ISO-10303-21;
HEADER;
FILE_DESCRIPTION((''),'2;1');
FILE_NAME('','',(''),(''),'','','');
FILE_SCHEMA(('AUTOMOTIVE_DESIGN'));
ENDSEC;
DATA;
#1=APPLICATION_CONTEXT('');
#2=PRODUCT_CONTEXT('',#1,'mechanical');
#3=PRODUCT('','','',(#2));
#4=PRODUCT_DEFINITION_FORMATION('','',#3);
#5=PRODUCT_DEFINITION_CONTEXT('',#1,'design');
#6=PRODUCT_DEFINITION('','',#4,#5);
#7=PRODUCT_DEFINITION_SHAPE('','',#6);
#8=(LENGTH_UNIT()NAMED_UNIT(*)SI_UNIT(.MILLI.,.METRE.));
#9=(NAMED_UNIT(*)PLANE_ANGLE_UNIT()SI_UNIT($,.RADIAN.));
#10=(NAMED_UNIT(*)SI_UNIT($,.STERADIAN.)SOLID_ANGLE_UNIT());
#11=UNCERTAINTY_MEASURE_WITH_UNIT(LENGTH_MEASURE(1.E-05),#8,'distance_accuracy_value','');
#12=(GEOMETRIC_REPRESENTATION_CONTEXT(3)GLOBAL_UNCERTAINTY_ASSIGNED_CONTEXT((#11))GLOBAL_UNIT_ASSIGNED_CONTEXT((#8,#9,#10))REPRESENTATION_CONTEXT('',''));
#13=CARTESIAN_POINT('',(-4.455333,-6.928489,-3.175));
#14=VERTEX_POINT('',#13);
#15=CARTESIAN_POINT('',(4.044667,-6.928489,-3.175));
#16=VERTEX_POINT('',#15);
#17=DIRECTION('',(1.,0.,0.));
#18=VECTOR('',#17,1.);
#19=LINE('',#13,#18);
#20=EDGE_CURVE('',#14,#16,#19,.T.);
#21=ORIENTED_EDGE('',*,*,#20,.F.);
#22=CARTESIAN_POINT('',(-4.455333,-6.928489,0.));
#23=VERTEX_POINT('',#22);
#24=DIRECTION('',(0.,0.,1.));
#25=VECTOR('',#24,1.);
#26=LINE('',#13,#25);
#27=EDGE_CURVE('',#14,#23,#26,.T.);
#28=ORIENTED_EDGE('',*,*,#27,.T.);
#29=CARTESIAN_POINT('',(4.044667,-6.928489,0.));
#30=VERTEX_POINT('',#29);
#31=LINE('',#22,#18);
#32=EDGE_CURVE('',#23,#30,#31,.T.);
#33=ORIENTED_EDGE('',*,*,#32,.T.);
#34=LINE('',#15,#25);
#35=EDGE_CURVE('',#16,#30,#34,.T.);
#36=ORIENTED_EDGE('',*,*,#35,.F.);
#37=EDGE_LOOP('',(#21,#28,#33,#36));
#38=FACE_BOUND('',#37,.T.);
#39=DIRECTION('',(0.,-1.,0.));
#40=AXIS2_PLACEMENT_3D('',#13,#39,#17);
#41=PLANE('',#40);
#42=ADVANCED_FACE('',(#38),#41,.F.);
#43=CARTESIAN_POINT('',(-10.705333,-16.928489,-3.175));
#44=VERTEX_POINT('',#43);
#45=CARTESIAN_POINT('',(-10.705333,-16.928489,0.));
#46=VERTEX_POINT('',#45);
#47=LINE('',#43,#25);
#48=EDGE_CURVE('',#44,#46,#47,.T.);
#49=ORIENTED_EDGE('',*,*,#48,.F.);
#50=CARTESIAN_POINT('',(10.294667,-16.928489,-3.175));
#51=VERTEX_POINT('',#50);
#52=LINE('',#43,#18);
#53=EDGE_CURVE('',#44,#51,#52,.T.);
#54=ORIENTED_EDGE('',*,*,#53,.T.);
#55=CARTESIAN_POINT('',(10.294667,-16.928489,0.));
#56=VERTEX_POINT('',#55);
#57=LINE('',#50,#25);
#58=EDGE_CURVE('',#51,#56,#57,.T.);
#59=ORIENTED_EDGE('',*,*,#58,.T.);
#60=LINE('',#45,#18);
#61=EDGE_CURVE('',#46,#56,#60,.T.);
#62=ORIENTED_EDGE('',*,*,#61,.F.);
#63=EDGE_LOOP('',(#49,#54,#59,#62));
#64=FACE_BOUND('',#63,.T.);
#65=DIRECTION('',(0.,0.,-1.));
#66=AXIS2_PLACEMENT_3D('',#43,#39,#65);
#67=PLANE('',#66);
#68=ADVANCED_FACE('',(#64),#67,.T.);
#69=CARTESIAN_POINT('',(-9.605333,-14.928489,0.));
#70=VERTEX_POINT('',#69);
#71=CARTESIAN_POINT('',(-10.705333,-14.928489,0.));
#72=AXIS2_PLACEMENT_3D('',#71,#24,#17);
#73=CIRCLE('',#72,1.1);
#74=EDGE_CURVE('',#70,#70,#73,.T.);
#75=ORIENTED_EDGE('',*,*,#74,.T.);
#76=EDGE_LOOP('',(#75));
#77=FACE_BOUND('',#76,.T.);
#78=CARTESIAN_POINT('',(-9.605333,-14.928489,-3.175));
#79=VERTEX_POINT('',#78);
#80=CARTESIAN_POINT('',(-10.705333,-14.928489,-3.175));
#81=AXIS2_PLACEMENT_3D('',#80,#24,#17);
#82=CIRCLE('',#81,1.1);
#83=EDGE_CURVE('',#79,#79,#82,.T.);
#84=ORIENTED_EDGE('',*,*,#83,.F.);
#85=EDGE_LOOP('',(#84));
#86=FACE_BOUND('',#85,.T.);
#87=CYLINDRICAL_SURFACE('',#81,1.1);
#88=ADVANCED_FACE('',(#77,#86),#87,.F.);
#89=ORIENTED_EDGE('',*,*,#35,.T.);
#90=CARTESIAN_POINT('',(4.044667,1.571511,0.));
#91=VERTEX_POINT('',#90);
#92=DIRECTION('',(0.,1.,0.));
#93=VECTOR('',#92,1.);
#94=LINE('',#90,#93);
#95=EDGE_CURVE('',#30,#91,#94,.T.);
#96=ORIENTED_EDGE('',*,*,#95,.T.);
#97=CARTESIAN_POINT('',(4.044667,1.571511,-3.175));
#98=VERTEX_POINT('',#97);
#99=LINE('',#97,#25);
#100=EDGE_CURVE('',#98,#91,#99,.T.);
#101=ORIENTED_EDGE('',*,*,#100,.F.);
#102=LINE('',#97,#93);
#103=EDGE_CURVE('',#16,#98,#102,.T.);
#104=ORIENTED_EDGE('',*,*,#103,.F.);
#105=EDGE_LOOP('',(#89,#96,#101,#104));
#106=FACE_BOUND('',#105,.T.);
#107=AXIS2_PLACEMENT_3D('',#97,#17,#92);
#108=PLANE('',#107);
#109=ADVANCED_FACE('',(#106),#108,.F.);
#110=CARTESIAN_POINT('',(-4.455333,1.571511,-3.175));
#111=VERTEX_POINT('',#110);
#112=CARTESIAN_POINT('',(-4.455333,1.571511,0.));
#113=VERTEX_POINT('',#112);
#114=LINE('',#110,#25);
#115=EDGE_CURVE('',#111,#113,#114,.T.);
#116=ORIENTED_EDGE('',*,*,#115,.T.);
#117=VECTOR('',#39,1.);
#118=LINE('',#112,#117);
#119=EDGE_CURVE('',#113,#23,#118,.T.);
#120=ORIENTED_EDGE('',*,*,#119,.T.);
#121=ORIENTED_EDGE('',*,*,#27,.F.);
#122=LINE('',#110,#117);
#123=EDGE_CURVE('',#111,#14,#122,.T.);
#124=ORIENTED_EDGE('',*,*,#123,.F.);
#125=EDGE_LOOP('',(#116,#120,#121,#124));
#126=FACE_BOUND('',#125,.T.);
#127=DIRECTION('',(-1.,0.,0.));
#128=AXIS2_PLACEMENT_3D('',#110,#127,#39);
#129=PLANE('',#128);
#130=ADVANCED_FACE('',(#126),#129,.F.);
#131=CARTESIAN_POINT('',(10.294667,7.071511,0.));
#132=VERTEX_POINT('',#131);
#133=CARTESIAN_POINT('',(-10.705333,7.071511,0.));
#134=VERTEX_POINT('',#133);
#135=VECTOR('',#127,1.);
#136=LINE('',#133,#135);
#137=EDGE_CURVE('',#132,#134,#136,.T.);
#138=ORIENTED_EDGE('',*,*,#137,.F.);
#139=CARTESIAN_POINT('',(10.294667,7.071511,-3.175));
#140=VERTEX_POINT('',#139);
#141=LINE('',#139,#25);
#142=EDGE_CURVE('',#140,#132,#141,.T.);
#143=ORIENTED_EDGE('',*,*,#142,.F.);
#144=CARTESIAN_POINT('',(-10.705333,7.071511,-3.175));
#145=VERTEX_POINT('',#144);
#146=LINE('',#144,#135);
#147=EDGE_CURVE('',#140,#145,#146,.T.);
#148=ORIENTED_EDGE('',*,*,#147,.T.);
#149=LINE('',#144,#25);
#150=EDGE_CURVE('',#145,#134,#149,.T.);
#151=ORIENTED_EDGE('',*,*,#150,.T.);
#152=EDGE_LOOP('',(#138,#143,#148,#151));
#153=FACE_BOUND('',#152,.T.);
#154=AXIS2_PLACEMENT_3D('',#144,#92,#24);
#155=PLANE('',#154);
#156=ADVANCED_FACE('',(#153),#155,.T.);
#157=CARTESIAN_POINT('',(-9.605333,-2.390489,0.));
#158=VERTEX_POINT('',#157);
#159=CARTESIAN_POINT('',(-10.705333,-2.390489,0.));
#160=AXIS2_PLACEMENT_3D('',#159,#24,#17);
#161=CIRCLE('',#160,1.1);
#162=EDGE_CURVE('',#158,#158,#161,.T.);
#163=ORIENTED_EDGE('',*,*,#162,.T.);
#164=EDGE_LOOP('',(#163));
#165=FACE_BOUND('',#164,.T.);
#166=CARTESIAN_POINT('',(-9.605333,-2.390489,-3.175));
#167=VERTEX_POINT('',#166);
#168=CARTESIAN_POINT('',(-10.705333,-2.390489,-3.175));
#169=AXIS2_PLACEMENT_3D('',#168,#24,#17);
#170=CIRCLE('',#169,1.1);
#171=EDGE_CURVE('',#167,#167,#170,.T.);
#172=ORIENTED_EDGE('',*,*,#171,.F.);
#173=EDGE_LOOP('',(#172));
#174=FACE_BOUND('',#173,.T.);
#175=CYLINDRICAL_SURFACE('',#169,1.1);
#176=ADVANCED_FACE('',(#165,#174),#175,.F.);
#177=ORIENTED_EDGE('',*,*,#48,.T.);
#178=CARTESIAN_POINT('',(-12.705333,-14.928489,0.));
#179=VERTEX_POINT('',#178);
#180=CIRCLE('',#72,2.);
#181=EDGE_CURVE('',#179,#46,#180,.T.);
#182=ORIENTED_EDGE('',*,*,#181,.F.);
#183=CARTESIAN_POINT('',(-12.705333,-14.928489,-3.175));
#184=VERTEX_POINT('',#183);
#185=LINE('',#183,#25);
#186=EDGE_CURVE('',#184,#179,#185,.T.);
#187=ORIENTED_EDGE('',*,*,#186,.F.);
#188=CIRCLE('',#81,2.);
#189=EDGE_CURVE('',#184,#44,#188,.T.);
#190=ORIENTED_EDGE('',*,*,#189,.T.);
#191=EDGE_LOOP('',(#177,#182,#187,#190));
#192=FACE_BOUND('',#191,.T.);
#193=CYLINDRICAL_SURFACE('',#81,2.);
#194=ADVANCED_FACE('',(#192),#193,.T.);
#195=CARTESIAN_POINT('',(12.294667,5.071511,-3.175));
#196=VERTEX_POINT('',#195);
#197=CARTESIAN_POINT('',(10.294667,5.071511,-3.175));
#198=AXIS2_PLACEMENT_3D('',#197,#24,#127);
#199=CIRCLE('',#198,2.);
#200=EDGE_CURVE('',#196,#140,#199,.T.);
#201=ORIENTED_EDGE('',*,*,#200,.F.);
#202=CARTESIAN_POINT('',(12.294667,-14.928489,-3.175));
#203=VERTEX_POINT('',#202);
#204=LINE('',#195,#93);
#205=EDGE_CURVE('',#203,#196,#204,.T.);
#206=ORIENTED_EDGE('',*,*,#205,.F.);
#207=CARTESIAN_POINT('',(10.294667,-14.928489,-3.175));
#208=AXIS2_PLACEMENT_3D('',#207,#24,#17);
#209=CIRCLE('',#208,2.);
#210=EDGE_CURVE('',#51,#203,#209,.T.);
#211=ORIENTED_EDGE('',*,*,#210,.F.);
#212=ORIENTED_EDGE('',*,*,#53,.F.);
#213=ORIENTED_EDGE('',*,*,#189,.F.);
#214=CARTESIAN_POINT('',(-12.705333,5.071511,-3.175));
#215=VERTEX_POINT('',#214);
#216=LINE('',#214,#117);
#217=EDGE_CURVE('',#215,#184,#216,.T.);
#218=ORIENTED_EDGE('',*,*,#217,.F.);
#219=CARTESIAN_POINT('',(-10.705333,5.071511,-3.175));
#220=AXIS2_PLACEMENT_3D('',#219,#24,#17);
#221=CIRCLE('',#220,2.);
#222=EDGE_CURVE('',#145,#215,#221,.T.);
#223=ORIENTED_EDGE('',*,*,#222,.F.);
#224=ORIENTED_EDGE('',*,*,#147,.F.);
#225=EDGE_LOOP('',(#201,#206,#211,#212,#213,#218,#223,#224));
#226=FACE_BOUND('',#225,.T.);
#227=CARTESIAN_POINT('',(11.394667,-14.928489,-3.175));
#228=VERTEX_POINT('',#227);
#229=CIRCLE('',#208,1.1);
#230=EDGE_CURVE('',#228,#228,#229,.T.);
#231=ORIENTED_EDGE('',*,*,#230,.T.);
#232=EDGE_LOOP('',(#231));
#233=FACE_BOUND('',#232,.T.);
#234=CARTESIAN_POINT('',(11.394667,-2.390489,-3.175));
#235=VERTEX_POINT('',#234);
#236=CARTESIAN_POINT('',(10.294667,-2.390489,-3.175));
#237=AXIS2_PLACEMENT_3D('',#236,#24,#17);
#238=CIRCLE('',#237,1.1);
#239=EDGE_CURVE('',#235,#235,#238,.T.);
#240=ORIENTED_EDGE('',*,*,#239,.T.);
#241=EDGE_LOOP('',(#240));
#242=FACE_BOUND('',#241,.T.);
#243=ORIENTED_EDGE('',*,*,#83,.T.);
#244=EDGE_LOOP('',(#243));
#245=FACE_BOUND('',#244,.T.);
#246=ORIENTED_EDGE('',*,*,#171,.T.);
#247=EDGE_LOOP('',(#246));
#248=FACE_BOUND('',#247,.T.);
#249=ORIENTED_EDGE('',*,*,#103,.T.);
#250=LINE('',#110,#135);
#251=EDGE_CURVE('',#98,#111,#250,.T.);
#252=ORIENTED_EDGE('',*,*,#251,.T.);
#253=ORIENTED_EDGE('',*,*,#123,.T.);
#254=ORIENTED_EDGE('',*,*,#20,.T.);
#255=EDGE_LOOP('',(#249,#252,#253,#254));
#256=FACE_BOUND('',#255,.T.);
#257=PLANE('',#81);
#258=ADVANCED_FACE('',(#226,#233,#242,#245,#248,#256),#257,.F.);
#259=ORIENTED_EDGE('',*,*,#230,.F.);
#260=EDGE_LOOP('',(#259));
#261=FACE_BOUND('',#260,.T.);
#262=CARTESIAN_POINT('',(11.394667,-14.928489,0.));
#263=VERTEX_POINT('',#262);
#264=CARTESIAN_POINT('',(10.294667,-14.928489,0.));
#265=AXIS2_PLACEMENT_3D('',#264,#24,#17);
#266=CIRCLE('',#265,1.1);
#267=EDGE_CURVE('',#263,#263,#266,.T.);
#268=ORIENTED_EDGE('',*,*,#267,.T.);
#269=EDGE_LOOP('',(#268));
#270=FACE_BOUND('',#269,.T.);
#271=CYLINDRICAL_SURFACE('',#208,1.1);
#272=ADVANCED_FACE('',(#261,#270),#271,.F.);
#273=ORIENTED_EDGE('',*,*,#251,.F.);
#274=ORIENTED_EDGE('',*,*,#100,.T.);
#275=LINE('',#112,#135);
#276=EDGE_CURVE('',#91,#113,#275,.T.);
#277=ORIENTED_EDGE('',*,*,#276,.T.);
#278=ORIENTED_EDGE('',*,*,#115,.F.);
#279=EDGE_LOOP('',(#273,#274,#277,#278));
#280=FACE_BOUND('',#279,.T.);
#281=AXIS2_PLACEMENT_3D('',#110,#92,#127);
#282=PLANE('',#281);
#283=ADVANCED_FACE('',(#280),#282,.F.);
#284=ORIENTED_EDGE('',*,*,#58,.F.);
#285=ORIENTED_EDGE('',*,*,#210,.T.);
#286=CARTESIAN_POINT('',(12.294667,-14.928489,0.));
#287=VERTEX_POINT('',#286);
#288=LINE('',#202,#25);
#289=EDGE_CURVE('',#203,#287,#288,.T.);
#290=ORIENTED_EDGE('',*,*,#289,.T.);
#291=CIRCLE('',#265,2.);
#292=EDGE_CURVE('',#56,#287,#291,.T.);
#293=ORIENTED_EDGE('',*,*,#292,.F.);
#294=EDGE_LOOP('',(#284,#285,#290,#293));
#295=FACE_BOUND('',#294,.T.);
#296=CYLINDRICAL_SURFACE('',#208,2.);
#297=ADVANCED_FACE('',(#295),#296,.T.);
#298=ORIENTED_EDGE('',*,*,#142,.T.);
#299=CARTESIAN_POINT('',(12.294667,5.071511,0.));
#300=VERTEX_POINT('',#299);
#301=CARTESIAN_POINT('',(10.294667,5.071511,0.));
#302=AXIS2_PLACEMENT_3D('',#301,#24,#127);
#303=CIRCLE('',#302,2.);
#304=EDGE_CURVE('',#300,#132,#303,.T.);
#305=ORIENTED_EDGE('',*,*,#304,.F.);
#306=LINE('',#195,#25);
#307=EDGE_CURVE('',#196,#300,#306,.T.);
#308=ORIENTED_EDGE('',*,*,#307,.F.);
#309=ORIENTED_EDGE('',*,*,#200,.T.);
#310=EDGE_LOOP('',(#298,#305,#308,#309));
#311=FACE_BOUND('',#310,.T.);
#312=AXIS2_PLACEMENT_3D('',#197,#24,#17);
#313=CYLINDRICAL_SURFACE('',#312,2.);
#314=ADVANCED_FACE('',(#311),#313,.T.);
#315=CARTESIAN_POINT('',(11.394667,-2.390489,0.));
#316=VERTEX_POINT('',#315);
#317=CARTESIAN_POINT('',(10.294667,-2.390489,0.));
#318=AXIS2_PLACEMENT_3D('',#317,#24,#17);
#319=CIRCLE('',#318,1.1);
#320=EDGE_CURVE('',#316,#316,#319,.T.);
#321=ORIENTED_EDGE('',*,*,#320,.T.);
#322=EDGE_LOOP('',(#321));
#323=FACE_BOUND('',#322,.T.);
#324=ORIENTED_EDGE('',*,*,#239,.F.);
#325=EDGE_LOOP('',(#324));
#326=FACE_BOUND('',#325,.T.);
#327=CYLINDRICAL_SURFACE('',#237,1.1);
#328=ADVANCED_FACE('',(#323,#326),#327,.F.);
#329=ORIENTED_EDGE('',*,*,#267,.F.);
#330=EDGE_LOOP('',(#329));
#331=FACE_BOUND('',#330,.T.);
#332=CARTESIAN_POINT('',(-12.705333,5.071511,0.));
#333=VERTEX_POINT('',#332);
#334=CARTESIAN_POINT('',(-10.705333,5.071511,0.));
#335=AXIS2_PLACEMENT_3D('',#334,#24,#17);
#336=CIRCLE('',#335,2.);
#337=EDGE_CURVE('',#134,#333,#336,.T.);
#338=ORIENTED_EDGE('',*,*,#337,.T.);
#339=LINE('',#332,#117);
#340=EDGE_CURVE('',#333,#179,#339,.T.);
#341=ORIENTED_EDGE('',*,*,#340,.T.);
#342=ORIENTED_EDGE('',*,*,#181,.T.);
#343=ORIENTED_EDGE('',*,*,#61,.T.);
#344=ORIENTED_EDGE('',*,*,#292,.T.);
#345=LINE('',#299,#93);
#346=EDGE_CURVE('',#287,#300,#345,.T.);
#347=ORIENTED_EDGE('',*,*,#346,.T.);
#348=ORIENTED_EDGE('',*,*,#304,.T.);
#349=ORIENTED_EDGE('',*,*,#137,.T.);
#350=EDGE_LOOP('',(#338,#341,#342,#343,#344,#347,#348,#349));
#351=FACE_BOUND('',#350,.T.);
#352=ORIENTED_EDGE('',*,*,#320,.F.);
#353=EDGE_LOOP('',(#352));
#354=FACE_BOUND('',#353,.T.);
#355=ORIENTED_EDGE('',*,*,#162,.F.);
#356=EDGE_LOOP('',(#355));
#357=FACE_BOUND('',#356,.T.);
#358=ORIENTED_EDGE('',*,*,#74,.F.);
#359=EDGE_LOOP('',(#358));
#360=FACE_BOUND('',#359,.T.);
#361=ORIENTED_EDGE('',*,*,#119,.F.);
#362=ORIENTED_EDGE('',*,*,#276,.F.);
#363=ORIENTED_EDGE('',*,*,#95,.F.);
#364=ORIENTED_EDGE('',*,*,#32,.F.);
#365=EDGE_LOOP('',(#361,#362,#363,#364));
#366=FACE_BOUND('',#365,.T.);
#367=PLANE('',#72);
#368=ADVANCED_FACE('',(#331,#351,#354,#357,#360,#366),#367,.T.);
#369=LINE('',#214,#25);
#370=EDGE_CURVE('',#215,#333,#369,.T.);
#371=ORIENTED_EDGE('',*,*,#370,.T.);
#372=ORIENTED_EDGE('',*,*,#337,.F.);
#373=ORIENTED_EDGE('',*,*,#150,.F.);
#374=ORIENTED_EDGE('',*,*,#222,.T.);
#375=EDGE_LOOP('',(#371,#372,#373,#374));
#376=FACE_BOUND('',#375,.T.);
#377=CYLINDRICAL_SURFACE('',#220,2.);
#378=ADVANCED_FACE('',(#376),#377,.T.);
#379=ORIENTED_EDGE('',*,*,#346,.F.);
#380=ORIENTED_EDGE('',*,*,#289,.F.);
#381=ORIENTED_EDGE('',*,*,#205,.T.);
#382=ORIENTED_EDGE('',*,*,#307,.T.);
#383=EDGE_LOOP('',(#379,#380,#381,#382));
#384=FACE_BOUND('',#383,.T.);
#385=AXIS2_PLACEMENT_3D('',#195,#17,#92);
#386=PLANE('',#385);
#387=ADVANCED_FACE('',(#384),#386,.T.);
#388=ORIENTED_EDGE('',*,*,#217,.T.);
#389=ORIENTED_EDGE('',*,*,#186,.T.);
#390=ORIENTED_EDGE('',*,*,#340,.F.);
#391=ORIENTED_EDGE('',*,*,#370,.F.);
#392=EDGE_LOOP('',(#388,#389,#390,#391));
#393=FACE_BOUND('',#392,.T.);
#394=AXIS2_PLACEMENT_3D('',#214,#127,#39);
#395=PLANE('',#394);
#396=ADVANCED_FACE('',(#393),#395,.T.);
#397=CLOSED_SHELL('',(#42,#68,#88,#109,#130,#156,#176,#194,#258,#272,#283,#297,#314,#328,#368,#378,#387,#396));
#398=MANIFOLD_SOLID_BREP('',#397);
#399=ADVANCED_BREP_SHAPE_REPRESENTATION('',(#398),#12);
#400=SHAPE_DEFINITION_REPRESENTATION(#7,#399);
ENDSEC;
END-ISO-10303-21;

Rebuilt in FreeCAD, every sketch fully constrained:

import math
import FreeCAD as App
import Part
import Sketcher

doc = App.newDocument("Part")
body = doc.addObject("PartDesign::Body", "Body")

sketch1 = body.newObject("Sketcher::SketchObject", "Sketch")
sketch1.AttachmentSupport = (doc.getObject("XY_Plane"), [""])
sketch1.MapMode = "FlatFace"
sketch1.addGeometry(Part.LineSegment(App.Vector(10.3, 7.1, 0), App.Vector(-10.7, 7.1, 0)), False)
sketch1.addGeometry(Part.ArcOfCircle(Part.Circle(App.Vector(-10.7, 5.1, 0), App.Vector(0, 0, 1), 2), math.radians(90), math.radians(180)), False)
sketch1.addGeometry(Part.LineSegment(App.Vector(-12.7, 5.1, 0), App.Vector(-12.7, -14.9, 0)), False)
sketch1.addGeometry(Part.ArcOfCircle(Part.Circle(App.Vector(-10.7, -14.9, 0), App.Vector(0, 0, 1), 2), math.radians(-180), math.radians(-90)), False)
sketch1.addGeometry(Part.LineSegment(App.Vector(-10.7, -16.9, 0), App.Vector(10.3, -16.9, 0)), False)
sketch1.addGeometry(Part.ArcOfCircle(Part.Circle(App.Vector(10.3, -14.9, 0), App.Vector(0, 0, 1), 2), math.radians(-90), math.radians(0)), False)
sketch1.addGeometry(Part.LineSegment(App.Vector(12.3, -14.9, 0), App.Vector(12.3, 5.1, 0)), False)
sketch1.addGeometry(Part.ArcOfCircle(Part.Circle(App.Vector(10.3, 5.1, 0), App.Vector(0, 0, 1), 2), math.radians(0), math.radians(90)), False)
sketch1.addGeometry(Part.Circle(App.Vector(10.3, -14.9, 0), App.Vector(0, 0, 1), 1.1), False)
sketch1.addGeometry(Part.Circle(App.Vector(-10.7, -14.9, 0), App.Vector(0, 0, 1), 1.1), False)
sketch1.addGeometry(Part.Circle(App.Vector(10.3, -2.4, 0), App.Vector(0, 0, 1), 1.1), False)
sketch1.addGeometry(Part.LineSegment(App.Vector(-4.5, -6.9, 0), App.Vector(-4.5, 1.6, 0)), False)
sketch1.addGeometry(Part.LineSegment(App.Vector(-4.5, 1.6, 0), App.Vector(4, 1.6, 0)), False)
sketch1.addGeometry(Part.LineSegment(App.Vector(4, 1.6, 0), App.Vector(4, -6.9, 0)), False)
sketch1.addGeometry(Part.LineSegment(App.Vector(4, -6.9, 0), App.Vector(-4.5, -6.9, 0)), False)
sketch1.addGeometry(Part.Circle(App.Vector(-10.7, -2.4, 0), App.Vector(0, 0, 1), 1.1), False)
sketch1.addConstraint(Sketcher.Constraint("Tangent", 0, 2, 1, 1))
sketch1.addConstraint(Sketcher.Constraint("Tangent", 1, 2, 2, 1))
sketch1.addConstraint(Sketcher.Constraint("Tangent", 2, 2, 3, 1))
sketch1.addConstraint(Sketcher.Constraint("Tangent", 3, 2, 4, 1))
sketch1.addConstraint(Sketcher.Constraint("Tangent", 4, 2, 5, 1))
sketch1.addConstraint(Sketcher.Constraint("Tangent", 5, 2, 6, 1))
sketch1.addConstraint(Sketcher.Constraint("Tangent", 6, 2, 7, 1))
sketch1.addConstraint(Sketcher.Constraint("Tangent", 7, 2, 0, 1))
sketch1.addConstraint(Sketcher.Constraint("Coincident", 11, 2, 12, 1))
sketch1.addConstraint(Sketcher.Constraint("Coincident", 12, 2, 13, 1))
sketch1.addConstraint(Sketcher.Constraint("Coincident", 13, 2, 14, 1))
sketch1.addConstraint(Sketcher.Constraint("Coincident", 14, 2, 11, 1))
sketch1.addConstraint(Sketcher.Constraint("Horizontal", 0))
sketch1.addConstraint(Sketcher.Constraint("Vertical", 2))
sketch1.addConstraint(Sketcher.Constraint("Horizontal", 4))
sketch1.addConstraint(Sketcher.Constraint("Vertical", 6))
sketch1.addConstraint(Sketcher.Constraint("Vertical", 11))
sketch1.addConstraint(Sketcher.Constraint("Horizontal", 12))
sketch1.addConstraint(Sketcher.Constraint("Vertical", 13))
sketch1.addConstraint(Sketcher.Constraint("Horizontal", 14))
sketch1.addConstraint(Sketcher.Constraint("Coincident", 8, 3, 5, 3))
sketch1.addConstraint(Sketcher.Constraint("Coincident", 9, 3, 3, 3))
sketch1.addConstraint(Sketcher.Constraint("Equal", 1, 3))
sketch1.addConstraint(Sketcher.Constraint("Equal", 3, 5))
sketch1.addConstraint(Sketcher.Constraint("Equal", 5, 7))
sketch1.addConstraint(Sketcher.Constraint("Equal", 8, 9))
sketch1.addConstraint(Sketcher.Constraint("Equal", 9, 10))
sketch1.addConstraint(Sketcher.Constraint("Equal", 10, 15))
sketch1.addConstraint(Sketcher.Constraint("Horizontal", 10, 3, 15, 3))
sketch1.addConstraint(Sketcher.Constraint("Vertical", 8, 3, 10, 3))
sketch1.addConstraint(Sketcher.Constraint("Vertical", 9, 3, 15, 3))
sketch1.addConstraint(Sketcher.Constraint("Equal", 14, 11))
sketch1.addConstraint(Sketcher.Constraint("Radius", 1, 2.0))
sketch1.addConstraint(Sketcher.Constraint("Diameter", 8, 2.2))
sketch1.addConstraint(Sketcher.Constraint("DistanceX", 0, 2, 0, 1, 21.0))
sketch1.addConstraint(Sketcher.Constraint("DistanceY", 2, 2, 2, 1, 20.0))
sketch1.addConstraint(Sketcher.Constraint("DistanceX", 12, 1, 12, 2, 8.5))
sketch1.addConstraint(Sketcher.Constraint("DistanceY", 5, 3, 13, 2, 8.0))
sketch1.addConstraint(Sketcher.Constraint("DistanceX", 1, 3, 11, 2, 6.25))
sketch1.addConstraint(Sketcher.Constraint("DistanceY", 10, 3, 7, 3, 7.462))
sketch1.addConstraint(Sketcher.Constraint("DistanceY", -1, 1, 1, 3, 5.071511))
sketch1.addConstraint(Sketcher.Constraint("DistanceX", 1, 3, -1, 1, 10.705333))
pad1 = body.newObject("PartDesign::Pad", "Pad")
pad1.Profile = sketch1
pad1.Length = 3.175
pad1.Reversed = True

doc.recompute()
